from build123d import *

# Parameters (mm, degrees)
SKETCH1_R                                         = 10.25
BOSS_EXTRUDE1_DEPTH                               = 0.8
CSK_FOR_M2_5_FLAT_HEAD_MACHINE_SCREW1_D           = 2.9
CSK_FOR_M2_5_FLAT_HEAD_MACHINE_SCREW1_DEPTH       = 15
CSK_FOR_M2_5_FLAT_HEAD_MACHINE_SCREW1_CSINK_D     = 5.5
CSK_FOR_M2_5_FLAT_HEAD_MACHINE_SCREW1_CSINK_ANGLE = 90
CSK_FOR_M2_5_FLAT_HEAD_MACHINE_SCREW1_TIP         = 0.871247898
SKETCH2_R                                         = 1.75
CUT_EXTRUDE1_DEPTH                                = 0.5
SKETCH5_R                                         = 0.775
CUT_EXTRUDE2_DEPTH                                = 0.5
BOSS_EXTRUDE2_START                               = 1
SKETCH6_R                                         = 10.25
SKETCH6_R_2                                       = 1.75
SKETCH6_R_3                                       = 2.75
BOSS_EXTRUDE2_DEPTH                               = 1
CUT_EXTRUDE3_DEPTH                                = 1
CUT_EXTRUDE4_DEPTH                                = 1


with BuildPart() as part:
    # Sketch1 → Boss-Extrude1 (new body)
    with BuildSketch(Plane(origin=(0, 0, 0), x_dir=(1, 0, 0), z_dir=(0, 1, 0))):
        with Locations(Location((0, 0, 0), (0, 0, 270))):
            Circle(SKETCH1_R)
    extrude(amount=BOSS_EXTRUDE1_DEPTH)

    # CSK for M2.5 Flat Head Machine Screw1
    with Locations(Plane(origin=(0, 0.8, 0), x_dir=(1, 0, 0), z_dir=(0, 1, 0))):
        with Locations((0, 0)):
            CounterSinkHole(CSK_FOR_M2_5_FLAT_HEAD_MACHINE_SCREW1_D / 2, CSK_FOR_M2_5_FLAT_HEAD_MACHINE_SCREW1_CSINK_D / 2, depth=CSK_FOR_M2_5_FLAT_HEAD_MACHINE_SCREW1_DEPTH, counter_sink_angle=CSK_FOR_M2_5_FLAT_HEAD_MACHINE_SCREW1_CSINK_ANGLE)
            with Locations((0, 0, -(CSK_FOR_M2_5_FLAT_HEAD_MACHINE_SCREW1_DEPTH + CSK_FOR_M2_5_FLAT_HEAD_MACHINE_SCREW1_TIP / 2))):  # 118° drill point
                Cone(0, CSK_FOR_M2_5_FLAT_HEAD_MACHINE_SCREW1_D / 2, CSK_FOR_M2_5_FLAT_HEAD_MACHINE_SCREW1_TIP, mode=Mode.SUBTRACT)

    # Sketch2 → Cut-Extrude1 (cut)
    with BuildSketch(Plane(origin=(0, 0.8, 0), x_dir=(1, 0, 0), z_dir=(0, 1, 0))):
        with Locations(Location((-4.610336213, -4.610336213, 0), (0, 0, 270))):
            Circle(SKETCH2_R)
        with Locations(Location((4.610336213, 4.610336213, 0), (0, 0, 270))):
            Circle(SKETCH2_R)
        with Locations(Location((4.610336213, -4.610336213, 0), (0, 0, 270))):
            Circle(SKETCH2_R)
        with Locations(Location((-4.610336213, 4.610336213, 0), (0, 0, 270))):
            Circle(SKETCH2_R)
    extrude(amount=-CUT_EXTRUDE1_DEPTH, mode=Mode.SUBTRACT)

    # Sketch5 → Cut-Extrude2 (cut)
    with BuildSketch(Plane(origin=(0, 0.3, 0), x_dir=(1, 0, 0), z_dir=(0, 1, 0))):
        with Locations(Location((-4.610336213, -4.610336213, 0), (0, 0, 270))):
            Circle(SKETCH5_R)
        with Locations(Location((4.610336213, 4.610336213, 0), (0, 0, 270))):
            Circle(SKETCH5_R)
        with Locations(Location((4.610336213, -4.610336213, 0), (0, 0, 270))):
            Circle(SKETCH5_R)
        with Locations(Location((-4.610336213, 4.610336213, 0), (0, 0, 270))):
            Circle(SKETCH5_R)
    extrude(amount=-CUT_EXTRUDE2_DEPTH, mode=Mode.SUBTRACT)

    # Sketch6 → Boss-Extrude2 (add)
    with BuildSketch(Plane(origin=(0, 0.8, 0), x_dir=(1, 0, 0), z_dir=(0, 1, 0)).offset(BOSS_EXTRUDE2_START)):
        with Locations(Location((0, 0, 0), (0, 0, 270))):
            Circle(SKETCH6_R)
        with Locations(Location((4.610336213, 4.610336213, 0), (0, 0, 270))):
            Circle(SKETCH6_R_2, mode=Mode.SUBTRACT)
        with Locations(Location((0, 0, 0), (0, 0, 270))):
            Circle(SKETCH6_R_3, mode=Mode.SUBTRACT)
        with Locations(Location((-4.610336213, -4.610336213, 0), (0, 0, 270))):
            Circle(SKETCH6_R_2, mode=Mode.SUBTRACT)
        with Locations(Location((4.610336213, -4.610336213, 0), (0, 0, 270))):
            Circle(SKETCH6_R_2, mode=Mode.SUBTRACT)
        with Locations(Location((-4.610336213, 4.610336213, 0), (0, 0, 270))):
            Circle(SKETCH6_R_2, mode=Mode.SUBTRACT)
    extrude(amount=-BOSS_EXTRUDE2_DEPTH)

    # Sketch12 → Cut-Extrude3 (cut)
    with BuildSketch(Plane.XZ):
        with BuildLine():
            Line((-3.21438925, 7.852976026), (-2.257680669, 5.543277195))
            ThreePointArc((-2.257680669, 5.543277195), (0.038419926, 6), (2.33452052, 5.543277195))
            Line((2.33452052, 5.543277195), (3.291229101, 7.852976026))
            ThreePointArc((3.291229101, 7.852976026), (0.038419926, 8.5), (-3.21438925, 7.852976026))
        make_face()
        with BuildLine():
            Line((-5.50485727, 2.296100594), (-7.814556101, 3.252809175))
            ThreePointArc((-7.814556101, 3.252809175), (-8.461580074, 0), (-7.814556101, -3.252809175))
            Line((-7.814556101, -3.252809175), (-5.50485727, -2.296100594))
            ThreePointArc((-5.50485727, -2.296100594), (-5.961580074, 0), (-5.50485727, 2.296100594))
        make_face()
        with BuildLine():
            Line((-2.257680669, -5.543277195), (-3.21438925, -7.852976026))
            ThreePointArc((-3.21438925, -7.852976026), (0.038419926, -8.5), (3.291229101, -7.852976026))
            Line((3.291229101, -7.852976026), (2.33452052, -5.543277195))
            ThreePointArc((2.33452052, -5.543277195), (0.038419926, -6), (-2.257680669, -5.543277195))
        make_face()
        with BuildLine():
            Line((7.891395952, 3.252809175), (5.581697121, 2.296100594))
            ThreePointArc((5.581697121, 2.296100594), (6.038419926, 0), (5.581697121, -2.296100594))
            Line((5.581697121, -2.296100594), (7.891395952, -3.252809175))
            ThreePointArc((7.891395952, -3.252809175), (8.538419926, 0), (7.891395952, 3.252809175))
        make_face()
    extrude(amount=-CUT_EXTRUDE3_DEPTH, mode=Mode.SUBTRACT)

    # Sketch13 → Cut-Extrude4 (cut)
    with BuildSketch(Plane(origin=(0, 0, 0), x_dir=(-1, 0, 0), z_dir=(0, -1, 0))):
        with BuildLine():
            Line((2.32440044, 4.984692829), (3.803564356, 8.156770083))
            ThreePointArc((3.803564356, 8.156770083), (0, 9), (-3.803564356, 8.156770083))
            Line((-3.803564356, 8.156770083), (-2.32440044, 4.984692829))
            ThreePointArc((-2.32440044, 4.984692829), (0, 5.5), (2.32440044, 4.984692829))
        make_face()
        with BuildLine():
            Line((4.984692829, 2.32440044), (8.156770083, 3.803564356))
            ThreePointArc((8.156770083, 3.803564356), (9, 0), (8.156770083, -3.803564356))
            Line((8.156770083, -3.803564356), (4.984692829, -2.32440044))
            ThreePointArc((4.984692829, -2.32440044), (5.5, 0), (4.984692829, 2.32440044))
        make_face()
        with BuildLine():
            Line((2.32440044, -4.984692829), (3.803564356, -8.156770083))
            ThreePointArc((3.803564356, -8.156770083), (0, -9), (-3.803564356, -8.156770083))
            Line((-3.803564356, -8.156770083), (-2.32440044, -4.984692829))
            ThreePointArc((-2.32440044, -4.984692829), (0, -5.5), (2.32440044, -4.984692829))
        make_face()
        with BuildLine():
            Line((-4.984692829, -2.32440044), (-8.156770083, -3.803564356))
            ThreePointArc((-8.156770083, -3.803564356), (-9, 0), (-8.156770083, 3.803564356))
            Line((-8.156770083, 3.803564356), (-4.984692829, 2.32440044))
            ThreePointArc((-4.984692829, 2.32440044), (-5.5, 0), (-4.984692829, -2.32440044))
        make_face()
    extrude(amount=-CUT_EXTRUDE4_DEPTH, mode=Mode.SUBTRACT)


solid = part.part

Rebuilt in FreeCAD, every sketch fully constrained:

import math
import FreeCAD as App
import Part
import Sketcher
from FreeCAD import Vector
Q = App.Units.Quantity

doc = App.newDocument("Part")
body = doc.addObject("PartDesign::Body", "Body")

# Sketch on XZ plane
sketch1 = body.newObject("Sketcher::SketchObject", "Sketch")
sketch1.AttachmentSupport = (doc.getObject("XZ_Plane"), [""])
sketch1.MapMode = "FlatFace"
sketch1.addGeometry(Part.Circle(Vector(0, 0, 0), Vector(0, 0, 1), 10), False)
sketch1.addConstraint(Sketcher.Constraint("Coincident", 0, 3, -1, 1))
sketch1.addConstraint(Sketcher.Constraint("Diameter", 0, Q("20.5 mm")))
pad1 = body.newObject("PartDesign::Pad", "Pad")
pad1.Profile = sketch1
pad1.Length = 0.8
pad1.Reversed = True

# Sketch on XZ plane
sketch2 = body.newObject("Sketcher::SketchObject", "Sketch001")
sketch2.AttachmentSupport = (doc.getObject("XZ_Plane"), [""])
sketch2.MapMode = "FlatFace"
sketch2.AttachmentOffset = App.Placement(Vector(0, 0, -0.8), App.Rotation())
sketch2.addGeometry(Part.Circle(Vector(0, 0, 0), Vector(0, 0, 1), 1.4), False)
sketch2.addConstraint(Sketcher.Constraint("Coincident", 0, 3, -1, 1))
sketch2.addConstraint(Sketcher.Constraint("Diameter", 0, Q("2.9 mm")))
doc.recompute()
hole = body.newObject("PartDesign::Hole", "Hole")
hole.Profile = sketch2
hole.ThreadType = "None"
hole.Diameter = 2.9
hole.DepthType = "Dimension"
hole.Depth = 15
hole.DrillPoint = "Angled"
hole.DrillPointAngle = 118
hole.HoleCutType = "Countersink"
hole.HoleCutDiameter = 5.5
hole.HoleCutCountersinkAngle = 90
hole.Reversed = True

# Sketch on XZ plane
sketch3 = body.newObject("Sketcher::SketchObject", "Sketch002")
sketch3.AttachmentSupport = (doc.getObject("XZ_Plane"), [""])
sketch3.MapMode = "FlatFace"
sketch3.AttachmentOffset = App.Placement(Vector(0, 0, -0.8), App.Rotation())
sketch3.addGeometry(Part.Circle(Vector(-4.6, 4.6, 0), Vector(0, 0, 1), 1.8), False)
sketch3.addGeometry(Part.Circle(Vector(4.6, -4.6, 0), Vector(0, 0, 1), 1.8), False)
sketch3.addGeometry(Part.Circle(Vector(4.6, 4.6, 0), Vector(0, 0, 1), 1.8), False)
sketch3.addGeometry(Part.Circle(Vector(-4.6, -4.6, 0), Vector(0, 0, 1), 1.8), False)
sketch3.addConstraint(Sketcher.Constraint("Equal", 0, 1))
sketch3.addConstraint(Sketcher.Constraint("Equal", 1, 2))
sketch3.addConstraint(Sketcher.Constraint("Equal", 2, 3))
sketch3.addConstraint(Sketcher.Constraint("Symmetric", 0, 3, 1, 3, -1, 1))
sketch3.addConstraint(Sketcher.Constraint("Symmetric", 2, 3, 3, 3, -1, 1))
sketch3.addConstraint(Sketcher.Constraint("Symmetric", 0, 3, 2, 3, -2))
sketch3.addConstraint(Sketcher.Constraint("Diameter", 0, Q("3.5 mm")))
sketch3.addConstraint(Sketcher.Constraint("DistanceX", 0, 3, -1, 1, Q("4.610336 mm")))
sketch3.addConstraint(Sketcher.Constraint("DistanceY", -1, 1, 0, 3, Q("4.610336 mm")))
pocket1 = body.newObject("PartDesign::Pocket", "Pocket")
pocket1.Profile = sketch3
pocket1.Length = 0.5
pocket1.Reversed = True

# Sketch on XZ plane
sketch4 = body.newObject("Sketcher::SketchObject", "Sketch003")
sketch4.AttachmentSupport = (doc.getObject("XZ_Plane"), [""])
sketch4.MapMode = "FlatFace"
sketch4.AttachmentOffset = App.Placement(Vector(0, 0, -0.3), App.Rotation())
sketch4.addGeometry(Part.Circle(Vector(-4.6, 4.6, 0), Vector(0, 0, 1), 0.8), False)
sketch4.addGeometry(Part.Circle(Vector(4.6, -4.6, 0), Vector(0, 0, 1), 0.8), False)
sketch4.addGeometry(Part.Circle(Vector(4.6, 4.6, 0), Vector(0, 0, 1), 0.8), False)
sketch4.addGeometry(Part.Circle(Vector(-4.6, -4.6, 0), Vector(0, 0, 1), 0.8), False)
sketch4.addConstraint(Sketcher.Constraint("Equal", 0, 1))
sketch4.addConstraint(Sketcher.Constraint("Equal", 1, 2))
sketch4.addConstraint(Sketcher.Constraint("Equal", 2, 3))
sketch4.addConstraint(Sketcher.Constraint("Symmetric", 0, 3, 1, 3, -1, 1))
sketch4.addConstraint(Sketcher.Constraint("Symmetric", 2, 3, 3, 3, -1, 1))
sketch4.addConstraint(Sketcher.Constraint("Symmetric", 0, 3, 2, 3, -2))
sketch4.addConstraint(Sketcher.Constraint("Diameter", 0, Q("1.55 mm")))
sketch4.addConstraint(Sketcher.Constraint("DistanceX", 0, 3, -1, 1, Q("4.610336 mm")))
sketch4.addConstraint(Sketcher.Constraint("DistanceY", -1, 1, 0, 3, Q("4.610336 mm")))
pocket2 = body.newObject("PartDesign::Pocket", "Pocket001")
pocket2.Profile = sketch4
pocket2.Length = 0.5
pocket2.Reversed = True

# Sketch on XZ plane
sketch5 = body.newObject("Sketcher::SketchObject", "Sketch004")
sketch5.AttachmentSupport = (doc.getObject("XZ_Plane"), [""])
sketch5.MapMode = "FlatFace"
sketch5.AttachmentOffset = App.Placement(Vector(0, 0, -1.8), App.Rotation())
sketch5.addGeometry(Part.Circle(Vector(0, 0, 0), Vector(0, 0, 1), 10.2), False)
sketch5.addGeometry(Part.Circle(Vector(-4.6, -4.6, 0), Vector(0, 0, 1), 1.8), False)
sketch5.addGeometry(Part.Circle(Vector(-4.6, 4.6, 0), Vector(0, 0, 1), 1.8), False)
sketch5.addGeometry(Part.Circle(Vector(4.6, -4.6, 0), Vector(0, 0, 1), 1.8), False)
sketch5.addGeometry(Part.Circle(Vector(0, 0, 0), Vector(0, 0, 1), 2.8), False)
sketch5.addGeometry(Part.Circle(Vector(4.6, 4.6, 0), Vector(0, 0, 1), 1.8), False)
sketch5.addConstraint(Sketcher.Constraint("Coincident", 0, 3, -1, 1))
sketch5.addConstraint(Sketcher.Constraint("Coincident", 4, 3, -1, 1))
sketch5.addConstraint(Sketcher.Constraint("Equal", 1, 2))
sketch5.addConstraint(Sketcher.Constraint("Equal", 2, 3))
sketch5.addConstraint(Sketcher.Constraint("Equal", 3, 5))
sketch5.addConstraint(Sketcher.Constraint("Symmetric", 2, 3, 3, 3, -1, 1))
sketch5.addConstraint(Sketcher.Constraint("Symmetric", 1, 3, 5, 3, -1, 1))
sketch5.addConstraint(Sketcher.Constraint("Symmetric", 1, 3, 3, 3, -2))
sketch5.addConstraint(Sketcher.Constraint("Diameter", 0, Q("20.5 mm")))
sketch5.addConstraint(Sketcher.Constraint("Diameter", 1, Q("3.5 mm")))
sketch5.addConstraint(Sketcher.Constraint("Diameter", 4, Q("5.5 mm")))
sketch5.addConstraint(Sketcher.Constraint("DistanceX", 1, 3, -1, 1, Q("4.610336 mm")))
sketch5.addConstraint(Sketcher.Constraint("DistanceY", 1, 3, -1, 1, Q("4.610336 mm")))
pad2 = body.newObject("PartDesign::Pad", "Pad001")
pad2.Profile = sketch5
pad2.Length = 1

# Sketch on XZ plane
sketch6 = body.newObject("Sketcher::SketchObject", "Sketch005")
sketch6.AttachmentSupport = (doc.getObject("XZ_Plane"), [""])
sketch6.MapMode = "FlatFace"
sketch6.addGeometry(Part.LineSegment(Vector(-3.2, 7.9, 0), Vector(-2.3, 5.5, 0)), False)
sketch6.addGeometry(Part.ArcOfCircle(Part.Circle(Vector(0, 0, 0), Vector(0, 0, 1), 6), math.radians(68), math.radians(113)), False)
sketch6.addGeometry(Part.LineSegment(Vector(2.3, 5.5, 0), Vector(3.3, 7.9, 0)), False)
sketch6.addGeometry(Part.ArcOfCircle(Part.Circle(Vector(0, 0, 0), Vector(0, 0, 1), 8.5), math.radians(67), math.radians(113)), False)
sketch6.addGeometry(Part.LineSegment(Vector(-5.5, 2.3, 0), Vector(-7.8, 3.3, 0)), False)
sketch6.addGeometry(Part.ArcOfCircle(Part.Circle(Vector(0, 0, 0), Vector(0, 0, 1), 8.5), math.radians(158), math.radians(202)), False)
sketch6.addGeometry(Part.LineSegment(Vector(-7.8, -3.3, 0), Vector(-5.5, -2.3, 0)), False)
sketch6.addGeometry(Part.ArcOfCircle(Part.Circle(Vector(0, 0, 0), Vector(0, 0, 1), 6), math.radians(158), math.radians(202)), False)
sketch6.addGeometry(Part.LineSegment(Vector(-2.3, -5.5, 0), Vector(-3.2, -7.9, 0)), False)
sketch6.addGeometry(Part.ArcOfCircle(Part.Circle(Vector(0, 0, 0), Vector(0, 0, 1), 8.5), math.radians(-113), math.radians(-67)), False)
sketch6.addGeometry(Part.LineSegment(Vector(3.3, -7.9, 0), Vector(2.3, -5.5, 0)), False)
sketch6.addGeometry(Part.ArcOfCircle(Part.Circle(Vector(0, 0, 0), Vector(0, 0, 1), 6), math.radians(-113), math.radians(-68)), False)
sketch6.addGeometry(Part.LineSegment(Vector(7.9, 3.3, 0), Vector(5.6, 2.3, 0)), False)
sketch6.addGeometry(Part.ArcOfCircle(Part.Circle(Vector(0, 0, 0), Vector(0, 0, 1), 6), math.radians(-23), math.radians(23)), False)
sketch6.addGeometry(Part.LineSegment(Vector(5.6, -2.3, 0), Vector(7.9, -3.3, 0)), False)
sketch6.addGeometry(Part.ArcOfCircle(Part.Circle(Vector(0, 0, 0), Vector(0, 0, 1), 8.5), math.radians(-23), math.radians(23)), False)
sketch6.addConstraint(Sketcher.Constraint("Coincident", 0, 2, 1, 2))
sketch6.addConstraint(Sketcher.Constraint("Coincident", 1, 1, 2, 1))
sketch6.addConstraint(Sketcher.Constraint("Coincident", 2, 2, 3, 1))
sketch6.addConstraint(Sketcher.Constraint("Coincident", 3, 2, 0, 1))
sketch6.addConstraint(Sketcher.Constraint("Coincident", 4, 2, 5, 1))
sketch6.addConstraint(Sketcher.Constraint("Coincident", 5, 2, 6, 1))
sketch6.addConstraint(Sketcher.Constraint("Coincident", 6, 2, 7, 2))
sketch6.addConstraint(Sketcher.Constraint("Coincident", 7, 1, 4, 1))
sketch6.addConstraint(Sketcher.Constraint("Coincident", 8, 2, 9, 1))
sketch6.addConstraint(Sketcher.Constraint("Coincident", 9, 2, 10, 1))
sketch6.addConstraint(Sketcher.Constraint("Coincident", 10, 2, 11, 2))
sketch6.addConstraint(Sketcher.Constraint("Coincident", 11, 1, 8, 1))
sketch6.addConstraint(Sketcher.Constraint("Coincident", 12, 2, 13, 2))
sketch6.addConstraint(Sketcher.Constraint("Coincident", 13, 1, 14, 1))
sketch6.addConstraint(Sketcher.Constraint("Coincident", 14, 2, 15, 1))
sketch6.addConstraint(Sketcher.Constraint("Coincident", 15, 2, 12, 1))
sketch6.addConstraint(Sketcher.Constraint("Coincident", 3, 3, 1, 3))
sketch6.addConstraint(Sketcher.Constraint("Coincident", 5, 3, 1, 3))
sketch6.addConstraint(Sketcher.Constraint("Coincident", 7, 3, 1, 3))
sketch6.addConstraint(Sketcher.Constraint("Coincident", 9, 3, 1, 3))
sketch6.addConstraint(Sketcher.Constraint("Coincident", 11, 3, 1, 3))
sketch6.addConstraint(Sketcher.Constraint("Coincident", 13, 3, 1, 3))
sketch6.addConstraint(Sketcher.Constraint("Coincident", 15, 3, 1, 3))
sketch6.addConstraint(Sketcher.Constraint("Equal", 3, 5))
sketch6.addConstraint(Sketcher.Constraint("Equal", 1, 7))
sketch6.addConstraint(Sketcher.Constraint("Equal", 5, 9))
sketch6.addConstraint(Sketcher.Constraint("Equal", 7, 11))
sketch6.addConstraint(Sketcher.Constraint("Equal", 11, 13))
sketch6.addConstraint(Sketcher.Constraint("Equal", 9, 15))
sketch6.addConstraint(Sketcher.Constraint("Symmetric", 4, 2, 5, 2, -1))
sketch6.addConstraint(Sketcher.Constraint("Perpendicular", 2, 4))
sketch6.addConstraint(Sketcher.Constraint("Perpendicular", 0, 6))
sketch6.addConstraint(Sketcher.Constraint("Perpendicular", 4, 8))
sketch6.addConstraint(Sketcher.Constraint("Perpendicular", 6, 10))
sketch6.addConstraint(Sketcher.Constraint("Perpendicular", 10, 12))
sketch6.addConstraint(Sketcher.Constraint("Perpendicular", 8, 14))
sketch6.addConstraint(Sketcher.Constraint("Horizontal", 0, 2, 1, 1))
sketch6.addConstraint(Sketcher.Constraint("Horizontal", 2, 2, 3, 2))
sketch6.addConstraint(Sketcher.Constraint("Horizontal", 8, 2, 9, 2))
sketch6.addConstraint(Sketcher.Constraint("Horizontal", 7, 1, 12, 2))
sketch6.addConstraint(Sketcher.Constraint("Horizontal", 6, 2, 13, 1))
sketch6.addConstraint(Sketcher.Constraint("Vertical", 3, 2, 8, 2))
sketch6.addConstraint(Sketcher.Constraint("Radius", 1, Q("6 mm")))
sketch6.addConstraint(Sketcher.Constraint("Radius", 3, Q("8.5 mm")))
sketch6.addConstraint(Sketcher.Constraint("Angle", 0, Q("-67.5 deg")))
sketch6.addConstraint(Sketcher.Constraint("DistanceY", 6, 2, -1, 1, Q("2.296101 mm")))
sketch6.addConstraint(Sketcher.Constraint("DistanceX", 0, 2, 3, 3, Q("2.296101 mm")))
sketch6.addConstraint(Sketcher.Constraint("DistanceX", -1, 1, 1, 3, Q("0.03842 mm")))
pocket3 = body.newObject("PartDesign::Pocket", "Pocket002")
pocket3.Profile = sketch6
pocket3.Length = 1

# Sketch on XZ plane
sketch7 = body.newObject("Sketcher::SketchObject", "Sketch006")
sketch7.AttachmentSupport = (doc.getObject("XZ_Plane"), [""])
sketch7.MapMode = "FlatFace"
sketch7.addGeometry(Part.LineSegment(Vector(-2.3, -5, 0), Vector(-3.8, -8.2, 0)), False)
sketch7.addGeometry(Part.ArcOfCircle(Part.Circle(Vector(0, 0, 0), Vector(0, 0, 1), 9), math.radians(-115), math.radians(-65)), False)
sketch7.addGeometry(Part.LineSegment(Vector(3.8, -8.2, 0), Vector(2.3, -5, 0)), False)
sketch7.addGeometry(Part.ArcOfCircle(Part.Circle(Vector(0, 0, 0), Vector(0, 0, 1), 5.5), math.radians(-115), math.radians(-65)), False)
sketch7.addGeometry(Part.LineSegment(Vector(-8.2, -3.8, 0), Vector(-5, -2.3, 0)), False)
sketch7.addGeometry(Part.ArcOfCircle(Part.Circle(Vector(0, 0, 0), Vector(0, 0, 1), 5.5), math.radians(155), math.radians(205)), False)
sketch7.addGeometry(Part.LineSegment(Vector(-5, 2.3, 0), Vector(-8.2, 3.8, 0)), False)
sketch7.addGeometry(Part.ArcOfCircle(Part.Circle(Vector(0, 0, 0), Vector(0, 0, 1), 9), math.radians(155), math.radians(205)), False)
sketch7.addGeometry(Part.LineSegment(Vector(-3.8, 8.2, 0), Vector(-2.3, 5, 0)), False)
sketch7.addGeometry(Part.ArcOfCircle(Part.Circle(Vector(0, 0, 0), Vector(0, 0, 1), 5.5), math.radians(65), math.radians(115)), False)
sketch7.addGeometry(Part.LineSegment(Vector(2.3, 5, 0), Vector(3.8, 8.2, 0)), False)
sketch7.addGeometry(Part.ArcOfCircle(Part.Circle(Vector(0, 0, 0), Vector(0, 0, 1), 9), math.radians(65), math.radians(115)), False)
sketch7.addGeometry(Part.LineSegment(Vector(8.2, 3.8, 0), Vector(5, 2.3, 0)), False)
sketch7.addGeometry(Part.ArcOfCircle(Part.Circle(Vector(0, 0, 0), Vector(0, 0, 1), 5.5), math.radians(-25), math.radians(25)), False)
sketch7.addGeometry(Part.LineSegment(Vector(5, -2.3, 0), Vector(8.2, -3.8, 0)), False)
sketch7.addGeometry(Part.ArcOfCircle(Part.Circle(Vector(0, 0, 0), Vector(0, 0, 1), 9), math.radians(-25), math.radians(25)), False)
sketch7.addConstraint(Sketcher.Constraint("Coincident", 0, 2, 1, 1))
sketch7.addConstraint(Sketcher.Constraint("Coincident", 1, 2, 2, 1))
sketch7.addConstraint(Sketcher.Constraint("Coincident", 2, 2, 3, 2))
sketch7.addConstraint(Sketcher.Constraint("Coincident", 3, 1, 0, 1))
sketch7.addConstraint(Sketcher.Constraint("Coincident", 4, 2, 5, 2))
sketch7.addConstraint(Sketcher.Constraint("Coincident", 5, 1, 6, 1))
sketch7.addConstraint(Sketcher.Constraint("Coincident", 6, 2, 7, 1))
sketch7.addConstraint(Sketcher.Constraint("Coincident", 7, 2, 4, 1))
sketch7.addConstraint(Sketcher.Constraint("Coincident", 8, 2, 9, 2))
sketch7.addConstraint(Sketcher.Constraint("Coincident", 9, 1, 10, 1))
sketch7.addConstraint(Sketcher.Constraint("Coincident", 10, 2, 11, 1))
sketch7.addConstraint(Sketcher.Constraint("Coincident", 11, 2, 8, 1))
sketch7.addConstraint(Sketcher.Constraint("Coincident", 12, 2, 13, 2))
sketch7.addConstraint(Sketcher.Constraint("Coincident", 13, 1, 14, 1))
sketch7.addConstraint(Sketcher.Constraint("Coincident", 14, 2, 15, 1))
sketch7.addConstraint(Sketcher.Constraint("Coincident", 15, 2, 12, 1))
sketch7.addConstraint(Sketcher.Constraint("Coincident", 1, 3, -1, 1))
sketch7.addConstraint(Sketcher.Constraint("Coincident", 3, 3, -1, 1))
sketch7.addConstraint(Sketcher.Constraint("Coincident", 5, 3, -1, 1))
sketch7.addConstraint(Sketcher.Constraint("Coincident", 7, 3, -1, 1))
sketch7.addConstraint(Sketcher.Constraint("Coincident", 9, 3, -1, 1))
sketch7.addConstraint(Sketcher.Constraint("Coincident", 11, 3, -1, 1))
sketch7.addConstraint(Sketcher.Constraint("Coincident", 13, 3, -1, 1))
sketch7.addConstraint(Sketcher.Constraint("Coincident", 15, 3, -1, 1))
sketch7.addConstraint(Sketcher.Constraint("Equal", 3, 5))
sketch7.addConstraint(Sketcher.Constraint("Equal", 1, 7))
sketch7.addConstraint(Sketcher.Constraint("Equal", 5, 9))
sketch7.addConstraint(Sketcher.Constraint("Equal", 7, 11))
sketch7.addConstraint(Sketcher.Constraint("Equal", 9, 13))
sketch7.addConstraint(Sketcher.Constraint("Equal", 11, 15))
sketch7.addConstraint(Sketcher.Constraint("Perpendicular", 2, 4))
sketch7.addConstraint(Sketcher.Constraint("Perpendicular", 0, 6))
sketch7.addConstraint(Sketcher.Constraint("Perpendicular", 4, 8))
sketch7.addConstraint(Sketcher.Constraint("Perpendicular", 6, 10))
sketch7.addConstraint(Sketcher.Constraint("Perpendicular", 8, 12))
sketch7.addConstraint(Sketcher.Constraint("Perpendicular", 10, 14))
sketch7.addConstraint(Sketcher.Constraint("Horizontal", 0, 2, 1, 2))
sketch7.addConstraint(Sketcher.Constraint("Horizontal", 2, 2, 3, 1))
sketch7.addConstraint(Sketcher.Constraint("Horizontal", 8, 2, 9, 1))
sketch7.addConstraint(Sketcher.Constraint("Horizontal", 5, 1, 12, 2))
sketch7.addConstraint(Sketcher.Constraint("Horizontal", 4, 2, 13, 1))
sketch7.addConstraint(Sketcher.Constraint("Vertical", 4, 2, 5, 1))
sketch7.addConstraint(Sketcher.Constraint("Vertical", 3, 1, 8, 2))
sketch7.addConstraint(Sketcher.Constraint("Radius", 1, Q("9 mm")))
sketch7.addConstraint(Sketcher.Constraint("Radius", 3, Q("5.5 mm")))
sketch7.addConstraint(Sketcher.Constraint("Angle", 0, Q("-115 deg")))
sketch7.addConstraint(Sketcher.Constraint("DistanceX", -1, 1, 2, 2, Q("2.3244 mm")))
sketch7.addConstraint(Sketcher.Constraint("DistanceY", 4, 2, -1, 1, Q("2.3244 mm")))
pocket4 = body.newObject("PartDesign::Pocket", "Pocket003")
pocket4.Profile = sketch7
pocket4.Length = 1

doc.recompute()
